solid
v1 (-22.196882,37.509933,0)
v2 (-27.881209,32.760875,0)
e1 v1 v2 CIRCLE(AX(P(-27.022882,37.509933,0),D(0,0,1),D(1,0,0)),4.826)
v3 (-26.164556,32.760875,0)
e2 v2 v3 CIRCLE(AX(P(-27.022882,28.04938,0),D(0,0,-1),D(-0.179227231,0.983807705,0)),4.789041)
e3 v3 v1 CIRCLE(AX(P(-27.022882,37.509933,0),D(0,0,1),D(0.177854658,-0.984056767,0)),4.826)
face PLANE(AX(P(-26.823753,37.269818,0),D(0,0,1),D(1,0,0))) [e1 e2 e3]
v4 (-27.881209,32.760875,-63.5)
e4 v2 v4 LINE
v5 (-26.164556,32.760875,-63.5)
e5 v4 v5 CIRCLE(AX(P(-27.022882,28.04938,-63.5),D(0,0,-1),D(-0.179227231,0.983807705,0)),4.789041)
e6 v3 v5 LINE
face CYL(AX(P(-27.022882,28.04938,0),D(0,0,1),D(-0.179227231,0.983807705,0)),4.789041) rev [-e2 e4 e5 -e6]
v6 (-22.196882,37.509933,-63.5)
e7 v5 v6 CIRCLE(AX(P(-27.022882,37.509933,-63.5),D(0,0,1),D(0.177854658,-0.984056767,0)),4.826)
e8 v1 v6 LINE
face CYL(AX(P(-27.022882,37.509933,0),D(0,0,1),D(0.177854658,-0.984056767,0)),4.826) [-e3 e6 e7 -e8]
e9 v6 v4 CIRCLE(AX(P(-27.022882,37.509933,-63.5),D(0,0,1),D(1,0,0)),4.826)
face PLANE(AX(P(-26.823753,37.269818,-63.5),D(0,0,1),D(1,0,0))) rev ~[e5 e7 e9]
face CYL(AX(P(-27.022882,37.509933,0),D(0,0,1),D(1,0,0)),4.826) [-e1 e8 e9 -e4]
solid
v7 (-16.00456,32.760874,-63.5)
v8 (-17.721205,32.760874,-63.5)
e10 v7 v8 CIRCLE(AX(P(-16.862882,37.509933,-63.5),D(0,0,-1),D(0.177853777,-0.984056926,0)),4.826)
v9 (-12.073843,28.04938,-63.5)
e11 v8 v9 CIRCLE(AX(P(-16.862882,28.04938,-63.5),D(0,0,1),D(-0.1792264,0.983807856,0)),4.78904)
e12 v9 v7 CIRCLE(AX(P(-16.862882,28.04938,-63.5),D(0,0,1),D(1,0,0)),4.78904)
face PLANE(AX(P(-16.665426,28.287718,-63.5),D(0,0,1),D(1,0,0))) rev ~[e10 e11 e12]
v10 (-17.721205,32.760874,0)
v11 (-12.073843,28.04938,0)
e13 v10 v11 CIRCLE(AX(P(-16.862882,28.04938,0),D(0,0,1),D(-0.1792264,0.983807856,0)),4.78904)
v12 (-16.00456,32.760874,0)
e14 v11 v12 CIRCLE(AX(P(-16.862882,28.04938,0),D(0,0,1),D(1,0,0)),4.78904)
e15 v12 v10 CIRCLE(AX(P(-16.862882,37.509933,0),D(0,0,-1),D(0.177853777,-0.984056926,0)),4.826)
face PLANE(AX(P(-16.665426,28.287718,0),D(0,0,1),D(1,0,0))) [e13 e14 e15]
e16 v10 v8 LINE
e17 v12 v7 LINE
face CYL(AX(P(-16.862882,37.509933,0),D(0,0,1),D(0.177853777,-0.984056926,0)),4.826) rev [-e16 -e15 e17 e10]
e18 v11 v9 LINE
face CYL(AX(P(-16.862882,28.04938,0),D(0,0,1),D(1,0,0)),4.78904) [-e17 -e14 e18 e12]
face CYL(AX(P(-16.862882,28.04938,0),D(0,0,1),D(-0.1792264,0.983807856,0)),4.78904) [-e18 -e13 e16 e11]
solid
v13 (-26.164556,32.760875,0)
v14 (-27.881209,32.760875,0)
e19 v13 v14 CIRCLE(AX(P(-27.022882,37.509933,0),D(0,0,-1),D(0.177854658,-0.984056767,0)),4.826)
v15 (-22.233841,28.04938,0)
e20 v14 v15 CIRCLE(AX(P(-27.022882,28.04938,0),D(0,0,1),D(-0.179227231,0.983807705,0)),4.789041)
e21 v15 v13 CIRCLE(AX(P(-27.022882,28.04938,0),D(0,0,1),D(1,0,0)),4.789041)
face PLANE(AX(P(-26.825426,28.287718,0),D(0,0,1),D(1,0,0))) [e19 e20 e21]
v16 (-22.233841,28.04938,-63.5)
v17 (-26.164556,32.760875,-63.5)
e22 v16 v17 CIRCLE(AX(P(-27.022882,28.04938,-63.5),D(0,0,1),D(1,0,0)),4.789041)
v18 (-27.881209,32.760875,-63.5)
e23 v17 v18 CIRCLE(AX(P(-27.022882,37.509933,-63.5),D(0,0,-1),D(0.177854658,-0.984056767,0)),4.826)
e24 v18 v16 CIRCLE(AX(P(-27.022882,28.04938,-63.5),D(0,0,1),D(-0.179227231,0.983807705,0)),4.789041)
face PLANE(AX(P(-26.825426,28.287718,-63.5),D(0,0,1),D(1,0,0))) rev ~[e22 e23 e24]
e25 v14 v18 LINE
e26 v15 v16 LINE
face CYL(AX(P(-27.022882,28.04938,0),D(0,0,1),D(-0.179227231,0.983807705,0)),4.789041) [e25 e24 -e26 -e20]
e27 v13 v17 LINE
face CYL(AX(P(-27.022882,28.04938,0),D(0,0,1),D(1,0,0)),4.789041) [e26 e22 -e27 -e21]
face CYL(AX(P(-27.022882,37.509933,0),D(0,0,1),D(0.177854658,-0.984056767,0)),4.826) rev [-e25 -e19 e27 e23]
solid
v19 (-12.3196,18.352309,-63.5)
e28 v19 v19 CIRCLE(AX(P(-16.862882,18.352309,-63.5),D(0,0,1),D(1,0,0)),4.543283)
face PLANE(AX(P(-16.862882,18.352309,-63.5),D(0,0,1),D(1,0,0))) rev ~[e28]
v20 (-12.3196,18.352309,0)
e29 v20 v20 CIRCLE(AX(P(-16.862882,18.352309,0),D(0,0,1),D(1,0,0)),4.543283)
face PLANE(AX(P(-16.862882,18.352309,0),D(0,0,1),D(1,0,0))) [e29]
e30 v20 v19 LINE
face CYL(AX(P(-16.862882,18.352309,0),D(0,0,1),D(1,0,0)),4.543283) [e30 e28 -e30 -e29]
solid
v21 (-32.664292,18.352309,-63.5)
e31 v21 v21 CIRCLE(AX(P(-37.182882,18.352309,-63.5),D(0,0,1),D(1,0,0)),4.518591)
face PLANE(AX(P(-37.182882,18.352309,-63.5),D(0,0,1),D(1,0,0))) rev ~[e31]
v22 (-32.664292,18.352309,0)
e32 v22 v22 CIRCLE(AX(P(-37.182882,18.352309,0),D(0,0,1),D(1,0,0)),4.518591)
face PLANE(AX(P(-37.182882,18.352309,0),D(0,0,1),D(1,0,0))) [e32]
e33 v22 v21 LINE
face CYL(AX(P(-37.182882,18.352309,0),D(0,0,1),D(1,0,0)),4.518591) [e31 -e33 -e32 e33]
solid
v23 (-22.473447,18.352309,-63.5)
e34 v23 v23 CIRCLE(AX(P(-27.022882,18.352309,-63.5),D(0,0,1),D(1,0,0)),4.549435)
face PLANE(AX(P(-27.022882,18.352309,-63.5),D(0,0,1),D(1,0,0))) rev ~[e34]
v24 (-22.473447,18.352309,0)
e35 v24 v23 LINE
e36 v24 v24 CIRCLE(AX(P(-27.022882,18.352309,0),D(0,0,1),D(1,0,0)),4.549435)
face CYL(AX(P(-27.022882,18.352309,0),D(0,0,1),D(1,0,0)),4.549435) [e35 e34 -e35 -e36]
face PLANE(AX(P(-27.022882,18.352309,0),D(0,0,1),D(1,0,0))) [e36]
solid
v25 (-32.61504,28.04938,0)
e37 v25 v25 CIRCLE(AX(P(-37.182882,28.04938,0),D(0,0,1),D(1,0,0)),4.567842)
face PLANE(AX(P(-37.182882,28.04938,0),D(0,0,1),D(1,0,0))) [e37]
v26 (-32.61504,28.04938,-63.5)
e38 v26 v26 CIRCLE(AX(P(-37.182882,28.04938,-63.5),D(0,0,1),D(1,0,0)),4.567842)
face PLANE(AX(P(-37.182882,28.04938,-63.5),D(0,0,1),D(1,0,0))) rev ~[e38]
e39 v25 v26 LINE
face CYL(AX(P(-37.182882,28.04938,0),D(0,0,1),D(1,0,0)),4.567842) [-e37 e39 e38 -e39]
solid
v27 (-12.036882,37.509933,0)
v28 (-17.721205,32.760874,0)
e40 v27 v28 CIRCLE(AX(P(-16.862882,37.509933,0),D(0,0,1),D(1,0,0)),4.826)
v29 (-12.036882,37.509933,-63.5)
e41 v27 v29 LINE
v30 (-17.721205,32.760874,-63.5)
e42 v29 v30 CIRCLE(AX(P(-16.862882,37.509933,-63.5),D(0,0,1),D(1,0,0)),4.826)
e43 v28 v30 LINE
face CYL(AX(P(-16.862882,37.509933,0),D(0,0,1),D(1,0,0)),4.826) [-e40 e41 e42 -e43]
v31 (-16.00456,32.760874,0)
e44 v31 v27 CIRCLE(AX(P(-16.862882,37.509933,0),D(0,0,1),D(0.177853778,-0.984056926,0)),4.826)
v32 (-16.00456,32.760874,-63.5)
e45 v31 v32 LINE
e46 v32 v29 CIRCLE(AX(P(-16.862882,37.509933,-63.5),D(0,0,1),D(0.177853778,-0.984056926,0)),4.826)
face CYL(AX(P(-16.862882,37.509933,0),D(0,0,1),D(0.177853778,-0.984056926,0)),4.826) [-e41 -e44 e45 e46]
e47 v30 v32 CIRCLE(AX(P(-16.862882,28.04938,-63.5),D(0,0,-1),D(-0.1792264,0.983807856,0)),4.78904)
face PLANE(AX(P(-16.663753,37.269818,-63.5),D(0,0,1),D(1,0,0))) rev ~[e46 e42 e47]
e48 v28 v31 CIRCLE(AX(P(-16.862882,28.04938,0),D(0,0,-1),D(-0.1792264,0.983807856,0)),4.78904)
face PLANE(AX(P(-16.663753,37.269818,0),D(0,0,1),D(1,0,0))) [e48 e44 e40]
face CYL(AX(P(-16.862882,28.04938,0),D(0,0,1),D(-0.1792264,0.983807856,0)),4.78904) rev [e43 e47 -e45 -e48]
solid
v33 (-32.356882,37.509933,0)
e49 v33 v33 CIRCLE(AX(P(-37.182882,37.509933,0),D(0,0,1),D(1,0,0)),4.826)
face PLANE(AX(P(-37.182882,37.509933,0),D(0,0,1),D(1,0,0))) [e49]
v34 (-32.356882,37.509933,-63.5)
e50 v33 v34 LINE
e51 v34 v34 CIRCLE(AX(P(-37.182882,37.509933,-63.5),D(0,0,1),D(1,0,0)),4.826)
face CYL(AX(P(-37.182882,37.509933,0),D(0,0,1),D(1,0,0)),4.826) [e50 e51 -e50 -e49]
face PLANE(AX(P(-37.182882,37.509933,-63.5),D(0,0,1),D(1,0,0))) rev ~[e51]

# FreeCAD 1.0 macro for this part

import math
import FreeCAD as App
import Part
import Sketcher
Q = App.Units.Quantity

doc = App.newDocument("Part")
body = doc.addObject("PartDesign::Body", "Body")

# Sketch on XY plane
sketch1 = body.newObject("Sketcher::SketchObject", "Sketch")
sketch1.AttachmentSupport = (doc.getObject("XY_Plane"), [""])
sketch1.MapMode = "FlatFace"
sketch1.addGeometry(Part.Circle(App.Vector(-37.182882, 18.352309, 0), App.Vector(0, 0, 1), 4.518591), False)
sketch1.addConstraint(Sketcher.Constraint("Diameter", 0, Q("9.037182 mm")))
sketch1.addConstraint(Sketcher.Constraint("DistanceY", -1, 1, 0, 3, Q("18.352309 mm")))
sketch1.addConstraint(Sketcher.Constraint("DistanceX", 0, 3, -1, 1, Q("37.182882 mm")))
pad1 = body.newObject("PartDesign::Pad", "Pad")
pad1.Profile = sketch1
pad1.Length = Q("2.5 in")
pad1.Reversed = True
body2 = doc.addObject("PartDesign::Body", "Body001")

# Sketch on XY plane
sketch2 = body2.newObject("Sketcher::SketchObject", "Sketch001")
sketch2.AttachmentSupport = (doc.getObject("XY_Plane001"), [""])
sketch2.MapMode = "FlatFace"
sketch2.addGeometry(Part.Circle(App.Vector(-27.022882, 18.352309, 0), App.Vector(0, 0, 1), 4.549435), False)
sketch2.addConstraint(Sketcher.Constraint("Diameter", 0, Q("9.09887 mm")))
sketch2.addConstraint(Sketcher.Constraint("DistanceY", -1, 1, 0, 3, Q("18.352309 mm")))
sketch2.addConstraint(Sketcher.Constraint("DistanceX", 0, 3, -1, 1, Q("27.022882 mm")))
pad2 = body2.newObject("PartDesign::Pad", "Pad001")
pad2.Profile = sketch2
pad2.Length = Q("2.5 in")
pad2.Reversed = True
body3 = doc.addObject("PartDesign::Body", "Body002")

# Sketch on XY plane
sketch3 = body3.newObject("Sketcher::SketchObject", "Sketch002")
sketch3.AttachmentSupport = (doc.getObject("XY_Plane002"), [""])
sketch3.MapMode = "FlatFace"
sketch3.addGeometry(Part.Circle(App.Vector(-16.862882, 18.352309, 0), App.Vector(0, 0, 1), 4.543283), False)
sketch3.addConstraint(Sketcher.Constraint("Diameter", 0, Q("9.086565 mm")))
sketch3.addConstraint(Sketcher.Constraint("DistanceY", -1, 1, 0, 3, Q("18.352309 mm")))
sketch3.addConstraint(Sketcher.Constraint("DistanceX", 0, 3, -1, 1, Q("16.862882 mm")))
pad3 = body3.newObject("PartDesign::Pad", "Pad002")
pad3.Profile = sketch3
pad3.Length = Q("2.5 in")
pad3.Reversed = True
body4 = doc.addObject("PartDesign::Body", "Body003")

# Sketch on XY plane
sketch4 = body4.newObject("Sketcher::SketchObject", "Sketch003")
sketch4.AttachmentSupport = (doc.getObject("XY_Plane003"), [""])
sketch4.MapMode = "FlatFace"
sketch4.addGeometry(Part.ArcOfCircle(Part.Circle(App.Vector(-16.862882, 37.509933, 0), App.Vector(0, 0, 1), 4.826), math.radians(-100.244773), math.radians(-79.755227)), False)
sketch4.addGeometry(Part.ArcOfCircle(Part.Circle(App.Vector(-16.862882, 28.04938, 0), App.Vector(0, 0, 1), 4.78904), math.radians(100.324703), math.radians(360)), False)
sketch4.addGeometry(Part.ArcOfCircle(Part.Circle(App.Vector(-16.862882, 28.04938, 0), App.Vector(0, 0, 1), 4.78904), math.radians(0), math.radians(79.675297)), False)
sketch4.addConstraint(Sketcher.Constraint("Coincident", 0, 1, 1, 1))
sketch4.addConstraint(Sketcher.Constraint("Tangent", 1, 2, 2, 1))
sketch4.addConstraint(Sketcher.Constraint("Coincident", 2, 2, 0, 2))
sketch4.addConstraint(Sketcher.Constraint("Equal", 1, 2))
sketch4.addConstraint(Sketcher.Constraint("Horizontal", 2, 3, 1, 2))
sketch4.addConstraint(Sketcher.Constraint("Horizontal", 0, 1, 2, 2))
sketch4.addConstraint(Sketcher.Constraint("Radius", 0, Q("0.19 in")))
sketch4.addConstraint(Sketcher.Constraint("Radius", 1, Q("4.78904 mm")))
sketch4.addConstraint(Sketcher.Constraint("DistanceY", -1, 1, 1, 3, Q("28.04938 mm")))
sketch4.addConstraint(Sketcher.Constraint("DistanceX", 2, 2, -1, 1, Q("16.00456 mm")))
sketch4.addConstraint(Sketcher.Constraint("DistanceY", 0, 1, 0, 3, Q("4.749059 mm")))
pad4 = body4.newObject("PartDesign::Pad", "Pad003")
pad4.Profile = sketch4
pad4.Length = Q("2.5 in")
pad4.Reversed = True
body5 = doc.addObject("PartDesign::Body", "Body004")

# Sketch on XY plane
sketch5 = body5.newObject("Sketcher::SketchObject", "Sketch004")
sketch5.AttachmentSupport = (doc.getObject("XY_Plane004"), [""])
sketch5.MapMode = "FlatFace"
sketch5.addGeometry(Part.ArcOfCircle(Part.Circle(App.Vector(-27.022882, 37.509933, 0), App.Vector(0, 0, 1), 4.826), math.radians(-100.244825), math.radians(-79.755175)), False)
sketch5.addGeometry(Part.ArcOfCircle(Part.Circle(App.Vector(-27.022882, 28.04938, 0), App.Vector(0, 0, 1), 4.789041), math.radians(100.324751), math.radians(360)), False)
sketch5.addGeometry(Part.ArcOfCircle(Part.Circle(App.Vector(-27.022882, 28.04938, 0), App.Vector(0, 0, 1), 4.789041), math.radians(0), math.radians(79.675249)), False)
sketch5.addConstraint(Sketcher.Constraint("Coincident", 0, 1, 1, 1))
sketch5.addConstraint(Sketcher.Constraint("Tangent", 1, 2, 2, 1))
sketch5.addConstraint(Sketcher.Constraint("Coincident", 2, 2, 0, 2))
sketch5.addConstraint(Sketcher.Constraint("Equal", 1, 2))
sketch5.addConstraint(Sketcher.Constraint("Horizontal", 2, 3, 1, 2))
sketch5.addConstraint(Sketcher.Constraint("Horizontal", 0, 1, 2, 2))
sketch5.addConstraint(Sketcher.Constraint("Radius", 0, Q("0.19 in")))
sketch5.addConstraint(Sketcher.Constraint("Radius", 1, Q("4.789041 mm")))
sketch5.addConstraint(Sketcher.Constraint("DistanceY", -1, 1, 1, 3, Q("28.04938 mm")))
sketch5.addConstraint(Sketcher.Constraint("DistanceX", 0, 1, -1, 1, Q("27.881209 mm")))
sketch5.addConstraint(Sketcher.Constraint("DistanceX", 1, 2, -1, 1, Q("22.233841 mm")))
pad5 = body5.newObject("PartDesign::Pad", "Pad004")
pad5.Profile = sketch5
pad5.Length = Q("2.5 in")
pad5.Reversed = True
body6 = doc.addObject("PartDesign::Body", "Body005")

# Sketch on XY plane
sketch6 = body6.newObject("Sketcher::SketchObject", "Sketch005")
sketch6.AttachmentSupport = (doc.getObject("XY_Plane005"), [""])
sketch6.MapMode = "FlatFace"
sketch6.addGeometry(Part.Circle(App.Vector(-37.182882, 28.04938, 0), App.Vector(0, 0, 1), 4.567842), False)
sketch6.addConstraint(Sketcher.Constraint("Diameter", 0, Q("9.135685 mm")))
sketch6.addConstraint(Sketcher.Constraint("DistanceY", -1, 1, 0, 3, Q("28.04938 mm")))
sketch6.addConstraint(Sketcher.Constraint("DistanceX", 0, 3, -1, 1, Q("37.182882 mm")))
pad6 = body6.newObject("PartDesign::Pad", "Pad005")
pad6.Profile = sketch6
pad6.Length = Q("2.5 in")
pad6.Reversed = True
body7 = doc.addObject("PartDesign::Body", "Body006")

# Sketch on XY plane
sketch7 = body7.newObject("Sketcher::SketchObject", "Sketch006")
sketch7.AttachmentSupport = (doc.getObject("XY_Plane006"), [""])
sketch7.MapMode = "FlatFace"
sketch7.addGeometry(Part.Circle(App.Vector(-37.182882, 37.509933, 0), App.Vector(0, 0, 1), 4.826), False)
sketch7.addConstraint(Sketcher.Constraint("Diameter", 0, Q("0.38 in")))
sketch7.addConstraint(Sketcher.Constraint("DistanceX", 0, 3, -1, 1, Q("37.182882 mm")))
sketch7.addConstraint(Sketcher.Constraint("DistanceY", -1, 1, 0, 3, Q("37.509933 mm")))
pad7 = body7.newObject("PartDesign::Pad", "Pad006")
pad7.Profile = sketch7
pad7.Length = Q("2.5 in")
pad7.Reversed = True
body8 = doc.addObject("PartDesign::Body", "Body007")

# Sketch on XY plane
sketch8 = body8.newObject("Sketcher::SketchObject", "Sketch007")
sketch8.AttachmentSupport = (doc.getObject("XY_Plane007"), [""])
sketch8.MapMode = "FlatFace"
sketch8.addGeometry(Part.ArcOfCircle(Part.Circle(App.Vector(-27.022882, 37.509933, 0), App.Vector(0, 0, 1), 4.826), math.radians(-79.755175), math.radians(0)), False)
sketch8.addGeometry(Part.ArcOfCircle(Part.Circle(App.Vector(-27.022882, 37.509933, 0), App.Vector(0, 0, 1), 4.826), math.radians(0), math.radians(259.755175)), False)
sketch8.addGeometry(Part.ArcOfCircle(Part.Circle(App.Vector(-27.022882, 28.04938, 0), App.Vector(0, 0, 1), 4.789041), math.radians(79.675249), math.radians(100.324751)), False)
sketch8.addConstraint(Sketcher.Constraint("Tangent", 0, 2, 1, 1))
sketch8.addConstraint(Sketcher.Constraint("Coincident", 1, 2, 2, 2))
sketch8.addConstraint(Sketcher.Constraint("Coincident", 2, 1, 0, 1))
sketch8.addConstraint(Sketcher.Constraint("Equal", 0, 1))
sketch8.addConstraint(Sketcher.Constraint("Horizontal", 1, 3, 0, 2))
sketch8.addConstraint(Sketcher.Constraint("Horizontal", 1, 2, 2, 1))
sketch8.addConstraint(Sketcher.Constraint("Radius", 0, Q("0.19 in")))
sketch8.addConstraint(Sketcher.Constraint("Radius", 2, Q("4.789041 mm")))
sketch8.addConstraint(Sketcher.Constraint("DistanceY", -1, 1, 2, 3, Q("28.04938 mm")))
sketch8.addConstraint(Sketcher.Constraint("DistanceX", 1, 2, -1, 1, Q("27.881209 mm")))
sketch8.addConstraint(Sketcher.Constraint("DistanceX", 0, 3, -1, 1, Q("27.022882 mm")))
pad8 = body8.newObject("PartDesign::Pad", "Pad007")
pad8.Profile = sketch8
pad8.Length = Q("2.5 in")
pad8.Reversed = True
body9 = doc.addObject("PartDesign::Body", "Body008")

# Sketch on XY plane
sketch9 = body9.newObject("Sketcher::SketchObject", "Sketch008")
sketch9.AttachmentSupport = (doc.getObject("XY_Plane008"), [""])
sketch9.MapMode = "FlatFace"
sketch9.addGeometry(Part.ArcOfCircle(Part.Circle(App.Vector(-16.862882, 37.509933, 0), App.Vector(0, 0, 1), 4.826), math.radians(-79.755227), math.radians(0)), False)
sketch9.addGeometry(Part.ArcOfCircle(Part.Circle(App.Vector(-16.862882, 37.509933, 0), App.Vector(0, 0, 1), 4.826), math.radians(0), math.radians(259.755227)), False)
sketch9.addGeometry(Part.ArcOfCircle(Part.Circle(App.Vector(-16.862882, 28.04938, 0), App.Vector(0, 0, 1), 4.78904), math.radians(79.675297), math.radians(100.324703)), False)
sketch9.addConstraint(Sketcher.Constraint("Tangent", 0, 2, 1, 1))
sketch9.addConstraint(Sketcher.Constraint("Coincident", 1, 2, 2, 2))
sketch9.addConstraint(Sketcher.Constraint("Coincident", 2, 1, 0, 1))
sketch9.addConstraint(Sketcher.Constraint("Equal", 0, 1))
sketch9.addConstraint(Sketcher.Constraint("Horizontal", 1, 3, 0, 2))
sketch9.addConstraint(Sketcher.Constraint("Horizontal", 1, 2, 2, 1))
sketch9.addConstraint(Sketcher.Constraint("Radius", 0, Q("0.19 in")))
sketch9.addConstraint(Sketcher.Constraint("Radius", 2, Q("4.78904 mm")))
sketch9.addConstraint(Sketcher.Constraint("DistanceY", -1, 1, 2, 3, Q("28.04938 mm")))
sketch9.addConstraint(Sketcher.Constraint("DistanceX", 2, 1, -1, 1, Q("16.00456 mm")))
sketch9.addConstraint(Sketcher.Constraint("DistanceY", 1, 2, 0, 3, Q("4.749059 mm")))
pad9 = body9.newObject("PartDesign::Pad", "Pad008")
pad9.Profile = sketch9
pad9.Length = Q("2.5 in")
pad9.Reversed = True

doc.recompute()
